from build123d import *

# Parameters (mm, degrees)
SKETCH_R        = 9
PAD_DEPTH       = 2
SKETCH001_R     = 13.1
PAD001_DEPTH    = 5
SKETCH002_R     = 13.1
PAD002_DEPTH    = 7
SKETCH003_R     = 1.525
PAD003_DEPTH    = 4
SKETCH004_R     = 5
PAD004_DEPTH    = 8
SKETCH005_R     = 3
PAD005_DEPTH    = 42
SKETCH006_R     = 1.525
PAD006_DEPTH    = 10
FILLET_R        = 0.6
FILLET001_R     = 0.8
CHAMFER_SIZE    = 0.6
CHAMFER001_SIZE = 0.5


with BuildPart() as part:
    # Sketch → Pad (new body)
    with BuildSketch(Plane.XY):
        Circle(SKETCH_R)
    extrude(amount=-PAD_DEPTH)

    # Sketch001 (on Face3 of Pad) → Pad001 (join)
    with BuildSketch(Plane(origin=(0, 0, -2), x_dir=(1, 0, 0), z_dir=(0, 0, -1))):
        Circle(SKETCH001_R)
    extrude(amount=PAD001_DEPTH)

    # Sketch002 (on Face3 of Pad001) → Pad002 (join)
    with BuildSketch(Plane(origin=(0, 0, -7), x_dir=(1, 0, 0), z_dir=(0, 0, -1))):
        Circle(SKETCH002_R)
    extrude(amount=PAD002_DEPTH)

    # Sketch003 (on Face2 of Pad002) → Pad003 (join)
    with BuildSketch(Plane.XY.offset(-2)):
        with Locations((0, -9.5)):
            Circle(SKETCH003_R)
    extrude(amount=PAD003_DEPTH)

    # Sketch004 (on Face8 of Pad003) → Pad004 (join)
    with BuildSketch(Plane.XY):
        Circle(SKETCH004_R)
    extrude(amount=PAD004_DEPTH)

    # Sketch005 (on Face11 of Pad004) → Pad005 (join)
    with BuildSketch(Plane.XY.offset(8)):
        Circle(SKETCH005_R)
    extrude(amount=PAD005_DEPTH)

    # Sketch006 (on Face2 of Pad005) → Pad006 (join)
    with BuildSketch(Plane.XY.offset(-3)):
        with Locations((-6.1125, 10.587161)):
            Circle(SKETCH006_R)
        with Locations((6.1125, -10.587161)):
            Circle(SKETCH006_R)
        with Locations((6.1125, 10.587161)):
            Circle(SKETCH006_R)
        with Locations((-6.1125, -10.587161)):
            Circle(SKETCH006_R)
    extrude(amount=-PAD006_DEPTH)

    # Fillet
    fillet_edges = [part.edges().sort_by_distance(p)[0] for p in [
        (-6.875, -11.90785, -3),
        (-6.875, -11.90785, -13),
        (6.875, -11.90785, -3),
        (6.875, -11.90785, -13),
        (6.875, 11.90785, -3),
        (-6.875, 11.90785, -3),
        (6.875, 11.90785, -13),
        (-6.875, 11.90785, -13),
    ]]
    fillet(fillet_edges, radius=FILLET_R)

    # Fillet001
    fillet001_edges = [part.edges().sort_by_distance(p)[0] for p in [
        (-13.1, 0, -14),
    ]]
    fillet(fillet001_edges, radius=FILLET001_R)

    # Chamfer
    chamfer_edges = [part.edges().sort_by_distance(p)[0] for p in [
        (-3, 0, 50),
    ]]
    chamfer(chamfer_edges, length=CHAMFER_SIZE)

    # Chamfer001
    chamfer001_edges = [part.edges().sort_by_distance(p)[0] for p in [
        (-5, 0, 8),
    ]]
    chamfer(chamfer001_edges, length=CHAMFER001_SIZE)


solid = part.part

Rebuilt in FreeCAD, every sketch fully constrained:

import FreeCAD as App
import Part
import Sketcher
from FreeCAD import Vector


def edges_at(feature, points):
    """Names of the edges that pass closest to the given points."""
    edges = feature.Shape.Edges
    near = lambda p: min(range(len(edges)), key=lambda i: edges[i].distToShape(Part.Vertex(*p))[0])
    return sorted({f"Edge{near(p) + 1}" for p in points})

doc = App.newDocument("Part")
body = doc.addObject("PartDesign::Body", "Body")

# Sketch on XY plane
sketch1 = body.newObject("Sketcher::SketchObject", "Sketch")
sketch1.AttachmentSupport = (doc.getObject("XY_Plane"), [""])
sketch1.MapMode = "FlatFace"
sketch1.addGeometry(Part.Circle(Vector(0, 0, 0), Vector(0, 0, 1), 9), False)
sketch1.addConstraint(Sketcher.Constraint("Coincident", 0, 3, -1, 1))
sketch1.addConstraint(Sketcher.Constraint("Diameter", 0, 18.0))
pad1 = body.newObject("PartDesign::Pad", "Pad")
pad1.Profile = sketch1
pad1.Length = 2
pad1.Reversed = True

# Sketch on XY plane
sketch2 = body.newObject("Sketcher::SketchObject", "Sketch001")
sketch2.AttachmentSupport = (doc.getObject("XY_Plane"), [""])
sketch2.MapMode = "FlatFace"
sketch2.AttachmentOffset = App.Placement(Vector(0, 0, -2), App.Rotation())
sketch2.addGeometry(Part.Circle(Vector(0, 0, 0), Vector(0, 0, 1), 13), False)
sketch2.addConstraint(Sketcher.Constraint("Coincident", 0, 3, -1, 1))
sketch2.addConstraint(Sketcher.Constraint("Diameter", 0, 26.2))
pad2 = body.newObject("PartDesign::Pad", "Pad001")
pad2.Profile = sketch2
pad2.Length = 5
pad2.Reversed = True

# Sketch on XY plane
sketch3 = body.newObject("Sketcher::SketchObject", "Sketch002")
sketch3.AttachmentSupport = (doc.getObject("XY_Plane"), [""])
sketch3.MapMode = "FlatFace"
sketch3.AttachmentOffset = App.Placement(Vector(0, 0, -7), App.Rotation())
sketch3.addGeometry(Part.Circle(Vector(0, 0, 0), Vector(0, 0, 1), 13), False)
sketch3.addConstraint(Sketcher.Constraint("Coincident", 0, 3, -1, 1))
sketch3.addConstraint(Sketcher.Constraint("Diameter", 0, 26.2))
pad3 = body.newObject("PartDesign::Pad", "Pad002")
pad3.Profile = sketch3
pad3.Length = 7
pad3.Reversed = True

# Sketch on XY plane
sketch4 = body.newObject("Sketcher::SketchObject", "Sketch003")
sketch4.AttachmentSupport = (doc.getObject("XY_Plane"), [""])
sketch4.MapMode = "FlatFace"
sketch4.AttachmentOffset = App.Placement(Vector(0, 0, -2), App.Rotation())
sketch4.addGeometry(Part.Circle(Vector(0, -9.5, 0), Vector(0, 0, 1), 1.5), False)
sketch4.addConstraint(Sketcher.Constraint("PointOnObject", 0, 3, -2))
sketch4.addConstraint(Sketcher.Constraint("Diameter", 0, 3.05))
sketch4.addConstraint(Sketcher.Constraint("DistanceY", 0, 3, -1, 1, 9.5))
pad4 = body.newObject("PartDesign::Pad", "Pad003")
pad4.Profile = sketch4
pad4.Length = 4

# Sketch on XY plane
sketch5 = body.newObject("Sketcher::SketchObject", "Sketch004")
sketch5.AttachmentSupport = (doc.getObject("XY_Plane"), [""])
sketch5.MapMode = "FlatFace"
sketch5.addGeometry(Part.Circle(Vector(0, 0, 0), Vector(0, 0, 1), 5), False)
sketch5.addConstraint(Sketcher.Constraint("Coincident", 0, 3, -1, 1))
sketch5.addConstraint(Sketcher.Constraint("Diameter", 0, 10.0))
pad5 = body.newObject("PartDesign::Pad", "Pad004")
pad5.Profile = sketch5
pad5.Length = 8

# Sketch on XY plane
sketch6 = body.newObject("Sketcher::SketchObject", "Sketch005")
sketch6.AttachmentSupport = (doc.getObject("XY_Plane"), [""])
sketch6.MapMode = "FlatFace"
sketch6.AttachmentOffset = App.Placement(Vector(0, 0, 8), App.Rotation())
sketch6.addGeometry(Part.Circle(Vector(0, 0, 0), Vector(0, 0, 1), 3), False)
sketch6.addConstraint(Sketcher.Constraint("Coincident", 0, 3, -1, 1))
sketch6.addConstraint(Sketcher.Constraint("Diameter", 0, 6.0))
pad6 = body.newObject("PartDesign::Pad", "Pad005")
pad6.Profile = sketch6
pad6.Length = 42

# Sketch on XY plane
sketch7 = body.newObject("Sketcher::SketchObject", "Sketch006")
sketch7.AttachmentSupport = (doc.getObject("XY_Plane"), [""])
sketch7.MapMode = "FlatFace"
sketch7.AttachmentOffset = App.Placement(Vector(0, 0, -3), App.Rotation())
sketch7.addGeometry(Part.Circle(Vector(-6.1, 10.6, 0), Vector(0, 0, 1), 1.5), False)
sketch7.addGeometry(Part.Circle(Vector(6.1, -10.6, 0), Vector(0, 0, 1), 1.5), False)
sketch7.addGeometry(Part.Circle(Vector(6.1, 10.6, 0), Vector(0, 0, 1), 1.5), False)
sketch7.addGeometry(Part.Circle(Vector(-6.1, -10.6, 0), Vector(0, 0, 1), 1.5), False)
sketch7.addConstraint(Sketcher.Constraint("Equal", 0, 1))
sketch7.addConstraint(Sketcher.Constraint("Equal", 1, 2))
sketch7.addConstraint(Sketcher.Constraint("Equal", 2, 3))
sketch7.addConstraint(Sketcher.Constraint("Symmetric", 0, 3, 1, 3, -1, 1))
sketch7.addConstraint(Sketcher.Constraint("Symmetric", 2, 3, 3, 3, -1, 1))
sketch7.addConstraint(Sketcher.Constraint("Symmetric", 0, 3, 2, 3, -2))
sketch7.addConstraint(Sketcher.Constraint("Diameter", 0, 3.05))
sketch7.addConstraint(Sketcher.Constraint("DistanceX", 0, 3, 1, 3, 12.225))
sketch7.addConstraint(Sketcher.Constraint("DistanceY", -1, 1, 0, 3, 10.587161))
pad7 = body.newObject("PartDesign::Pad", "Pad006")
pad7.Profile = sketch7
pad7.Length = 10
pad7.Reversed = True
doc.recompute()

fillet = body.newObject("PartDesign::Fillet", "Fillet")
fillet.Base = (pad7, edges_at(pad7, [
    (-6.875, -11.908, -3),
    (-6.875, -11.908, -13),
    (6.875, -11.908, -3),
    (6.875, -11.908, -13),
    (6.875, 11.908, -3),
    (-6.875, 11.908, -3),
    (6.875, 11.908, -13),
    (-6.875, 11.908, -13),
]))
fillet.Radius = 0.6
doc.recompute()

fillet2 = body.newObject("PartDesign::Fillet", "Fillet001")
fillet2.Base = (fillet, edges_at(fillet, [(-13.1, 0, -14)]))
fillet2.Radius = 0.8
doc.recompute()

chamfer = body.newObject("PartDesign::Chamfer", "Chamfer")
chamfer.Base = (fillet2, edges_at(fillet2, [(-3, 0, 50)]))
chamfer.Size = 0.6
doc.recompute()

chamfer2 = body.newObject("PartDesign::Chamfer", "Chamfer001")
chamfer2.Base = (chamfer, edges_at(chamfer, [(-5, 0, 8)]))
chamfer2.Size = 0.5

doc.recompute()
